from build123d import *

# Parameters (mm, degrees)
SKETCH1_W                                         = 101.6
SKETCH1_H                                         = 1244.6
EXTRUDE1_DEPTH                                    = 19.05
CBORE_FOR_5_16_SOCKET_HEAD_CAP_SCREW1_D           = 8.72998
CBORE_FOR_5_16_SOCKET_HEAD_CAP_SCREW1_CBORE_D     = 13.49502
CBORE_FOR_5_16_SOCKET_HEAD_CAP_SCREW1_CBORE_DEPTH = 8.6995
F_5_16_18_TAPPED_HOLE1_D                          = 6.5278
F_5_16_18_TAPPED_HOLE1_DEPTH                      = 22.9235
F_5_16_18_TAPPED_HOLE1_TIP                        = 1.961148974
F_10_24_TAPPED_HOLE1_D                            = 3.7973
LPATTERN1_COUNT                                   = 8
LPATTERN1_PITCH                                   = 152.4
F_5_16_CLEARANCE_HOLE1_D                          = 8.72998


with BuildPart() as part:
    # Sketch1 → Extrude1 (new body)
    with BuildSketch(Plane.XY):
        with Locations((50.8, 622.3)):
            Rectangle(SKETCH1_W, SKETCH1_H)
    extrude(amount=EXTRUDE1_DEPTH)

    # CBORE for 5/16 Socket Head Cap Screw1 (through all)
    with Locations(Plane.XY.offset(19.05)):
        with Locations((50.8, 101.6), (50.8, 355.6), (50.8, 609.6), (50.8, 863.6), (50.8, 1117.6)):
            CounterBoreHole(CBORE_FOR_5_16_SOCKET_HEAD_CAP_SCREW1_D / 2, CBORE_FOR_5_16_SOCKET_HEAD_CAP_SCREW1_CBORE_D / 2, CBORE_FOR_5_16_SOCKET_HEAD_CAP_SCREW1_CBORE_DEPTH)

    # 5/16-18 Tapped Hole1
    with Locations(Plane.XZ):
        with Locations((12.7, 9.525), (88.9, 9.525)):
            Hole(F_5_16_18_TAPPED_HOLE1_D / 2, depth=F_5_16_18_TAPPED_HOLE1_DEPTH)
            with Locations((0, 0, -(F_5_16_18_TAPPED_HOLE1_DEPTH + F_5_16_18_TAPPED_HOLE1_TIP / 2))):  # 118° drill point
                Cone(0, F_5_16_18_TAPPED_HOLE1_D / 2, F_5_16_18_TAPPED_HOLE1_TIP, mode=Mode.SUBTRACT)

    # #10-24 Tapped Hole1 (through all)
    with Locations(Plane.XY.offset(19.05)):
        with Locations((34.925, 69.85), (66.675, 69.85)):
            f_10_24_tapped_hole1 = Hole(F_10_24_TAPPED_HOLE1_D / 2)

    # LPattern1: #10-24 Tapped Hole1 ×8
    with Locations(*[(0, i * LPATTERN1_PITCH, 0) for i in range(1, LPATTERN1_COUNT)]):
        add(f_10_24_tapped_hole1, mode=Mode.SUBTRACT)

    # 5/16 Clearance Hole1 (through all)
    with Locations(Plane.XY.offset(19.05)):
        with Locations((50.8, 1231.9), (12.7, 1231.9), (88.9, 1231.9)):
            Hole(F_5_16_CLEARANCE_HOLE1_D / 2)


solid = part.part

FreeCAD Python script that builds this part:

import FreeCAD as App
import Part
import Sketcher

V = App.Vector
Q = App.Units.Quantity


def add_polygon(sketch, points):
    """Adds a closed chain of lines whose ends are joined by coincident constraints."""
    first, n = sketch.GeometryCount, len(points)
    for a, b in zip(points, points[1:] + points[:1]):
        sketch.addGeometry(Part.LineSegment(App.Vector(*a, 0), App.Vector(*b, 0)), False)
    for i in range(n):
        sketch.addConstraint(Sketcher.Constraint("Coincident", first + i, 2, first + (i + 1) % n, 1))

doc = App.newDocument("Part")
params = doc.addObject("Spreadsheet::Sheet", "Params")
for row, (alias, value) in enumerate([
    ("sketch1_width", "4 in"),
    ("sketch1_height", "49 in"),
    ("pad1_length", "0.75 in"),
    ("hole_diameter", "0.3437 in"),
    ("hole_cbore_diameter", "0.5313 in"),
    ("hole_cbore_depth", "0.3425 in"),
    ("sketch3_diameter", "0.257 in"),
    ("hole2_diameter", "0.257 in"),
    ("hole2_depth", "0.9025 in"),
    ("hole3_diameter", "0.1495 in"),
    ("linearpattern_pitch", "6 in"),
    ("hole4_diameter", "0.3437 in"),
], start=1):
    params.set(f"A{row}", alias)
    params.set(f"B{row}", "=" + value)
    params.setAlias(f"B{row}", alias)

body = doc.addObject("PartDesign::Body", "Body")

# Sketch on XY plane
sketch1 = body.newObject("Sketcher::SketchObject", "Sketch")
sketch1.AttachmentSupport = (doc.getObject("XY_Plane"), [""])
sketch1.MapMode = "FlatFace"
add_polygon(sketch1, [(0, 1245), (0, 0), (102, 0), (102, 1245)])  # lines 0-3
sketch1.addConstraint([
    Sketcher.Constraint("Vertical", 0),
    Sketcher.Constraint("Horizontal", 1),
    Sketcher.Constraint("Vertical", 2),
    Sketcher.Constraint("Horizontal", 3),
    Sketcher.Constraint("Coincident", 0, 2, -1, 1),
    Sketcher.Constraint("DistanceX", 1, 1, 1, 2, Q("4 in")),
    Sketcher.Constraint("DistanceY", 0, 2, 0, 1, Q("49 in")),
])
sketch1.setExpression("Constraints[9]", "Params.sketch1_width")
sketch1.setExpression("Constraints[10]", "Params.sketch1_height")
pad1 = body.newObject("PartDesign::Pad", "Pad")
pad1.Profile = sketch1
pad1.setExpression("Length", "Params.pad1_length")

# Sketch on XY plane
sketch2 = body.newObject("Sketcher::SketchObject", "Sketch001")
sketch2.AttachmentSupport = (doc.getObject("XY_Plane"), [""])
sketch2.MapMode = "FlatFace"
sketch2.AttachmentOffset = App.Placement(V(0, 0, 0.75 * 25.4), App.Rotation())
sketch2.addGeometry([
    Part.Circle(V(50.8, 101.6, 0), V(0, 0, 1), 4.4),  # 0
    Part.Circle(V(50.8, 355.6, 0), V(0, 0, 1), 4.4),  # 1
    Part.Circle(V(50.8, 609.6, 0), V(0, 0, 1), 4.4),  # 2
    Part.Circle(V(50.8, 863.6, 0), V(0, 0, 1), 4.4),  # 3
    Part.Circle(V(50.8, 1117.6, 0), V(0, 0, 1), 4.4),  # 4
], False)
sketch2.addConstraint([
    Sketcher.Constraint("Equal", 0, 1),
    Sketcher.Constraint("Equal", 1, 2),
    Sketcher.Constraint("Equal", 2, 3),
    Sketcher.Constraint("Equal", 3, 4),
    Sketcher.Constraint("Vertical", 0, 3, 1, 3),
    Sketcher.Constraint("Vertical", 1, 3, 2, 3),
    Sketcher.Constraint("Vertical", 2, 3, 3, 3),
    Sketcher.Constraint("Vertical", 3, 3, 4, 3),
    Sketcher.Constraint("DistanceX", -1, 1, 0, 3, Q("2 in")),
    Sketcher.Constraint("DistanceY", -1, 1, 0, 3, Q("4 in")),
    Sketcher.Constraint("DistanceY", -1, 1, 1, 3, Q("14 in")),
    Sketcher.Constraint("DistanceY", -1, 1, 2, 3, Q("24 in")),
    Sketcher.Constraint("DistanceY", -1, 1, 3, 3, Q("34 in")),
    Sketcher.Constraint("DistanceY", -1, 1, 4, 3, Q("44 in")),
    Sketcher.Constraint("Diameter", 0, Q("0.3437 in")),
])
doc.recompute()
hole = body.newObject("PartDesign::Hole", "Hole")
hole.Profile = sketch2
hole.ThreadType = "None"
hole.setExpression("Diameter", "Params.hole_diameter")
hole.DepthType = "ThroughAll"
hole.HoleCutType = "Counterbore"
hole.setExpression("HoleCutDiameter", "Params.hole_cbore_diameter")
hole.setExpression("HoleCutDepth", "Params.hole_cbore_depth")

# Sketch on XZ plane
sketch3 = body.newObject("Sketcher::SketchObject", "Sketch002")
sketch3.AttachmentSupport = (doc.getObject("XZ_Plane"), [""])
sketch3.MapMode = "FlatFace"
sketch3.addGeometry([
    Part.Circle(V(12.7, 9.5, 0), V(0, 0, 1), 3.3),
    Part.Circle(V(88.9, 9.5, 0), V(0, 0, 1), 3.3),
], False)
sketch3.addConstraint([
    Sketcher.Constraint("Equal", 0, 1),
    Sketcher.Constraint("Horizontal", 0, 3, 1, 3),
    Sketcher.Constraint("Diameter", 0, Q("0.257 in")),
    Sketcher.Constraint("DistanceX", 0, 3, 1, 3, Q("3 in")),
    Sketcher.Constraint("DistanceX", -1, 1, 0, 3, Q("0.5 in")),
    Sketcher.Constraint("DistanceY", -1, 1, 0, 3, Q("0.375 in")),
])
sketch3.setExpression("Constraints[2]", "Params.sketch3_diameter")
doc.recompute()
hole2 = body.newObject("PartDesign::Hole", "Hole001")
hole2.Profile = sketch3
hole2.ThreadType = "None"
hole2.setExpression("Diameter", "Params.hole2_diameter")
hole2.DepthType = "Dimension"
hole2.setExpression("Depth", "Params.hole2_depth")
hole2.DrillPoint = "Angled"
hole2.DrillPointAngle = 118

# Sketch on XY plane
sketch4 = body.newObject("Sketcher::SketchObject", "Sketch003")
sketch4.AttachmentSupport = (doc.getObject("XY_Plane"), [""])
sketch4.MapMode = "FlatFace"
sketch4.AttachmentOffset = App.Placement(V(0, 0, 0.75 * 25.4), App.Rotation())
sketch4.addGeometry([
    Part.Circle(V(34.9, 69.8, 0), V(0, 0, 1), 1.9),
    Part.Circle(V(66.7, 69.8, 0), V(0, 0, 1), 1.9),
], False)
sketch4.addConstraint([
    Sketcher.Constraint("Equal", 0, 1),
    Sketcher.Constraint("Horizontal", 0, 3, 1, 3),
    Sketcher.Constraint("Diameter", 0, Q("0.1495 in")),
    Sketcher.Constraint("DistanceY", -1, 1, 0, 3, Q("2.75 in")),
    Sketcher.Constraint("DistanceX", 0, 3, 1, 3, Q("1.25 in")),
    Sketcher.Constraint("DistanceX", -1, 1, 0, 3, Q("1.375 in")),
])
doc.recompute()
hole3 = body.newObject("PartDesign::Hole", "Hole002")
hole3.Profile = sketch4
hole3.ThreadType = "None"
hole3.setExpression("Diameter", "Params.hole3_diameter")
hole3.DepthType = "ThroughAll"
doc.recompute()

linearpattern = body.newObject("PartDesign::LinearPattern", "LinearPattern")
linearpattern.Originals = [hole3]
linearpattern.Direction = (doc.getObject("Y_Axis"), [""])
linearpattern.Mode = "offset"
linearpattern.setExpression("Offset", "Params.linearpattern_pitch")
linearpattern.Occurrences = 8
body.Tip = linearpattern

# Sketch on XY plane
sketch5 = body.newObject("Sketcher::SketchObject", "Sketch004")
sketch5.AttachmentSupport = (doc.getObject("XY_Plane"), [""])
sketch5.MapMode = "FlatFace"
sketch5.AttachmentOffset = App.Placement(V(0, 0, 0.75 * 25.4), App.Rotation())
sketch5.addGeometry([
    Part.Circle(V(50.8, 1231.9, 0), V(0, 0, 1), 4.4),
    Part.Circle(V(12.7, 1231.9, 0), V(0, 0, 1), 4.4),
    Part.Circle(V(88.9, 1231.9, 0), V(0, 0, 1), 4.4),
], False)
sketch5.addConstraint([
    Sketcher.Constraint("Equal", 0, 1),
    Sketcher.Constraint("Equal", 1, 2),
    Sketcher.Constraint("Horizontal", 0, 3, 1, 3),
    Sketcher.Constraint("Horizontal", 1, 3, 2, 3),
    Sketcher.Constraint("DistanceX", -1, 1, 0, 3, Q("2 in")),
    Sketcher.Constraint("DistanceX", 1, 3, 2, 3, Q("3 in")),
    Sketcher.Constraint("Diameter", 0, Q("0.3437 in")),
    Sketcher.Constraint("DistanceY", -1, 1, 0, 3, Q("48.5 in")),
    Sketcher.Constraint("DistanceX", -1, 1, 1, 3, Q("0.5 in")),
])
doc.recompute()
hole4 = body.newObject("PartDesign::Hole", "Hole003")
hole4.Profile = sketch5
hole4.ThreadType = "None"
hole4.setExpression("Diameter", "Params.hole4_diameter")
hole4.DepthType = "ThroughAll"

doc.recompute()
